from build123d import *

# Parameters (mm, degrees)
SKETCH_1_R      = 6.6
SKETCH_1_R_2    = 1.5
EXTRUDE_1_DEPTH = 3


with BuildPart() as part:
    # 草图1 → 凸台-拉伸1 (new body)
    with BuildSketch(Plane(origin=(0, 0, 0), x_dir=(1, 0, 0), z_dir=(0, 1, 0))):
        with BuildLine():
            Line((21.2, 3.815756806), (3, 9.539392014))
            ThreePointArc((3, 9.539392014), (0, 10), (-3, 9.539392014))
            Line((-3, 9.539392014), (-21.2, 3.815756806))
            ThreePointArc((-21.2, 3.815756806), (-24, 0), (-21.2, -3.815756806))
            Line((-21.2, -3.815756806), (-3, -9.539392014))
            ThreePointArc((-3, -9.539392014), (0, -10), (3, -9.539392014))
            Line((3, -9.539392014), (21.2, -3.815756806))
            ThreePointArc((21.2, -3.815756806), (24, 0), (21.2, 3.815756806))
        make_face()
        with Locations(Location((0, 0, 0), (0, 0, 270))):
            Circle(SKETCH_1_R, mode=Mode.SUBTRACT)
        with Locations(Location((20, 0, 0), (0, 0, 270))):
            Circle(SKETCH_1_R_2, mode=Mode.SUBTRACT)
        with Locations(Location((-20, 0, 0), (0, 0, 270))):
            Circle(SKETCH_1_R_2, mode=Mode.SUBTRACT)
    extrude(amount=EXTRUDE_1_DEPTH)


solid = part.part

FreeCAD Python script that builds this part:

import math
import FreeCAD as App
import Part
import Sketcher

V = App.Vector

doc = App.newDocument("Part")
body = doc.addObject("PartDesign::Body", "Body")

# Sketch on XZ plane
sketch1 = body.newObject("Sketcher::SketchObject", "Sketch")
sketch1.AttachmentSupport = (doc.getObject("XZ_Plane"), [""])
sketch1.MapMode = "FlatFace"
sketch1.addGeometry(Part.LineSegment(V(21.2, -3.8, 0), V(3, -9.5, 0)), False)
sketch1.addGeometry(Part.ArcOfCircle(Part.Circle(V(0, 0, 0), V(0, 0, 1), 10), math.radians(-107), math.radians(-73)), False)
sketch1.addGeometry(Part.LineSegment(V(-3, -9.5, 0), V(-21.2, -3.8, 0)), False)
sketch1.addGeometry(Part.ArcOfCircle(Part.Circle(V(-20, 0, 0), V(0, 0, 1), 4), math.radians(107), math.radians(253)), False)
sketch1.addGeometry(Part.LineSegment(V(-21.2, 3.8, 0), V(-3, 9.5, 0)), False)
sketch1.addGeometry(Part.ArcOfCircle(Part.Circle(V(0, 0, 0), V(0, 0, 1), 10), math.radians(73), math.radians(107)), False)
sketch1.addGeometry(Part.LineSegment(V(3, 9.5, 0), V(21.2, 3.8, 0)), False)
sketch1.addGeometry(Part.ArcOfCircle(Part.Circle(V(20, 0, 0), V(0, 0, 1), 4), math.radians(-73), math.radians(73)), False)
sketch1.addGeometry(Part.Circle(V(-20, 0, 0), V(0, 0, 1), 1.5), False)
sketch1.addGeometry(Part.Circle(V(0, 0, 0), V(0, 0, 1), 6.6), False)
sketch1.addGeometry(Part.Circle(V(20, 0, 0), V(0, 0, 1), 1.5), False)
sketch1.addConstraint(Sketcher.Constraint("Tangent", 0, 2, 1, 2))
sketch1.addConstraint(Sketcher.Constraint("Tangent", 1, 1, 2, 1))
sketch1.addConstraint(Sketcher.Constraint("Tangent", 2, 2, 3, 2))
sketch1.addConstraint(Sketcher.Constraint("Tangent", 3, 1, 4, 1))
sketch1.addConstraint(Sketcher.Constraint("Tangent", 4, 2, 5, 2))
sketch1.addConstraint(Sketcher.Constraint("Tangent", 5, 1, 6, 1))
sketch1.addConstraint(Sketcher.Constraint("Tangent", 6, 2, 7, 2))
sketch1.addConstraint(Sketcher.Constraint("Tangent", 7, 1, 0, 1))
sketch1.addConstraint(Sketcher.Constraint("Coincident", 1, 3, -1, 1))
sketch1.addConstraint(Sketcher.Constraint("Coincident", 5, 3, -1, 1))
sketch1.addConstraint(Sketcher.Constraint("Coincident", 9, 3, -1, 1))
sketch1.addConstraint(Sketcher.Constraint("Coincident", 8, 3, 3, 3))
sketch1.addConstraint(Sketcher.Constraint("Coincident", 10, 3, 7, 3))
sketch1.addConstraint(Sketcher.Constraint("Equal", 1, 5))
sketch1.addConstraint(Sketcher.Constraint("Equal", 3, 7))
sketch1.addConstraint(Sketcher.Constraint("Equal", 8, 10))
sketch1.addConstraint(Sketcher.Constraint("Symmetric", 3, 3, 7, 3, -1, 1))
sketch1.addConstraint(Sketcher.Constraint("PointOnObject", 3, 3, -1))
sketch1.addConstraint(Sketcher.Constraint("Diameter", 8, 3.0))
sketch1.addConstraint(Sketcher.Constraint("Radius", 1, 10.0))
sketch1.addConstraint(Sketcher.Constraint("Radius", 3, 4.0))
sketch1.addConstraint(Sketcher.Constraint("Diameter", 9, 13.2))
sketch1.addConstraint(Sketcher.Constraint("DistanceX", 3, 3, -1, 1, 20.0))
pad1 = body.newObject("PartDesign::Pad", "Pad")
pad1.Profile = sketch1
pad1.Length = 3
pad1.Reversed = True

doc.recompute()
